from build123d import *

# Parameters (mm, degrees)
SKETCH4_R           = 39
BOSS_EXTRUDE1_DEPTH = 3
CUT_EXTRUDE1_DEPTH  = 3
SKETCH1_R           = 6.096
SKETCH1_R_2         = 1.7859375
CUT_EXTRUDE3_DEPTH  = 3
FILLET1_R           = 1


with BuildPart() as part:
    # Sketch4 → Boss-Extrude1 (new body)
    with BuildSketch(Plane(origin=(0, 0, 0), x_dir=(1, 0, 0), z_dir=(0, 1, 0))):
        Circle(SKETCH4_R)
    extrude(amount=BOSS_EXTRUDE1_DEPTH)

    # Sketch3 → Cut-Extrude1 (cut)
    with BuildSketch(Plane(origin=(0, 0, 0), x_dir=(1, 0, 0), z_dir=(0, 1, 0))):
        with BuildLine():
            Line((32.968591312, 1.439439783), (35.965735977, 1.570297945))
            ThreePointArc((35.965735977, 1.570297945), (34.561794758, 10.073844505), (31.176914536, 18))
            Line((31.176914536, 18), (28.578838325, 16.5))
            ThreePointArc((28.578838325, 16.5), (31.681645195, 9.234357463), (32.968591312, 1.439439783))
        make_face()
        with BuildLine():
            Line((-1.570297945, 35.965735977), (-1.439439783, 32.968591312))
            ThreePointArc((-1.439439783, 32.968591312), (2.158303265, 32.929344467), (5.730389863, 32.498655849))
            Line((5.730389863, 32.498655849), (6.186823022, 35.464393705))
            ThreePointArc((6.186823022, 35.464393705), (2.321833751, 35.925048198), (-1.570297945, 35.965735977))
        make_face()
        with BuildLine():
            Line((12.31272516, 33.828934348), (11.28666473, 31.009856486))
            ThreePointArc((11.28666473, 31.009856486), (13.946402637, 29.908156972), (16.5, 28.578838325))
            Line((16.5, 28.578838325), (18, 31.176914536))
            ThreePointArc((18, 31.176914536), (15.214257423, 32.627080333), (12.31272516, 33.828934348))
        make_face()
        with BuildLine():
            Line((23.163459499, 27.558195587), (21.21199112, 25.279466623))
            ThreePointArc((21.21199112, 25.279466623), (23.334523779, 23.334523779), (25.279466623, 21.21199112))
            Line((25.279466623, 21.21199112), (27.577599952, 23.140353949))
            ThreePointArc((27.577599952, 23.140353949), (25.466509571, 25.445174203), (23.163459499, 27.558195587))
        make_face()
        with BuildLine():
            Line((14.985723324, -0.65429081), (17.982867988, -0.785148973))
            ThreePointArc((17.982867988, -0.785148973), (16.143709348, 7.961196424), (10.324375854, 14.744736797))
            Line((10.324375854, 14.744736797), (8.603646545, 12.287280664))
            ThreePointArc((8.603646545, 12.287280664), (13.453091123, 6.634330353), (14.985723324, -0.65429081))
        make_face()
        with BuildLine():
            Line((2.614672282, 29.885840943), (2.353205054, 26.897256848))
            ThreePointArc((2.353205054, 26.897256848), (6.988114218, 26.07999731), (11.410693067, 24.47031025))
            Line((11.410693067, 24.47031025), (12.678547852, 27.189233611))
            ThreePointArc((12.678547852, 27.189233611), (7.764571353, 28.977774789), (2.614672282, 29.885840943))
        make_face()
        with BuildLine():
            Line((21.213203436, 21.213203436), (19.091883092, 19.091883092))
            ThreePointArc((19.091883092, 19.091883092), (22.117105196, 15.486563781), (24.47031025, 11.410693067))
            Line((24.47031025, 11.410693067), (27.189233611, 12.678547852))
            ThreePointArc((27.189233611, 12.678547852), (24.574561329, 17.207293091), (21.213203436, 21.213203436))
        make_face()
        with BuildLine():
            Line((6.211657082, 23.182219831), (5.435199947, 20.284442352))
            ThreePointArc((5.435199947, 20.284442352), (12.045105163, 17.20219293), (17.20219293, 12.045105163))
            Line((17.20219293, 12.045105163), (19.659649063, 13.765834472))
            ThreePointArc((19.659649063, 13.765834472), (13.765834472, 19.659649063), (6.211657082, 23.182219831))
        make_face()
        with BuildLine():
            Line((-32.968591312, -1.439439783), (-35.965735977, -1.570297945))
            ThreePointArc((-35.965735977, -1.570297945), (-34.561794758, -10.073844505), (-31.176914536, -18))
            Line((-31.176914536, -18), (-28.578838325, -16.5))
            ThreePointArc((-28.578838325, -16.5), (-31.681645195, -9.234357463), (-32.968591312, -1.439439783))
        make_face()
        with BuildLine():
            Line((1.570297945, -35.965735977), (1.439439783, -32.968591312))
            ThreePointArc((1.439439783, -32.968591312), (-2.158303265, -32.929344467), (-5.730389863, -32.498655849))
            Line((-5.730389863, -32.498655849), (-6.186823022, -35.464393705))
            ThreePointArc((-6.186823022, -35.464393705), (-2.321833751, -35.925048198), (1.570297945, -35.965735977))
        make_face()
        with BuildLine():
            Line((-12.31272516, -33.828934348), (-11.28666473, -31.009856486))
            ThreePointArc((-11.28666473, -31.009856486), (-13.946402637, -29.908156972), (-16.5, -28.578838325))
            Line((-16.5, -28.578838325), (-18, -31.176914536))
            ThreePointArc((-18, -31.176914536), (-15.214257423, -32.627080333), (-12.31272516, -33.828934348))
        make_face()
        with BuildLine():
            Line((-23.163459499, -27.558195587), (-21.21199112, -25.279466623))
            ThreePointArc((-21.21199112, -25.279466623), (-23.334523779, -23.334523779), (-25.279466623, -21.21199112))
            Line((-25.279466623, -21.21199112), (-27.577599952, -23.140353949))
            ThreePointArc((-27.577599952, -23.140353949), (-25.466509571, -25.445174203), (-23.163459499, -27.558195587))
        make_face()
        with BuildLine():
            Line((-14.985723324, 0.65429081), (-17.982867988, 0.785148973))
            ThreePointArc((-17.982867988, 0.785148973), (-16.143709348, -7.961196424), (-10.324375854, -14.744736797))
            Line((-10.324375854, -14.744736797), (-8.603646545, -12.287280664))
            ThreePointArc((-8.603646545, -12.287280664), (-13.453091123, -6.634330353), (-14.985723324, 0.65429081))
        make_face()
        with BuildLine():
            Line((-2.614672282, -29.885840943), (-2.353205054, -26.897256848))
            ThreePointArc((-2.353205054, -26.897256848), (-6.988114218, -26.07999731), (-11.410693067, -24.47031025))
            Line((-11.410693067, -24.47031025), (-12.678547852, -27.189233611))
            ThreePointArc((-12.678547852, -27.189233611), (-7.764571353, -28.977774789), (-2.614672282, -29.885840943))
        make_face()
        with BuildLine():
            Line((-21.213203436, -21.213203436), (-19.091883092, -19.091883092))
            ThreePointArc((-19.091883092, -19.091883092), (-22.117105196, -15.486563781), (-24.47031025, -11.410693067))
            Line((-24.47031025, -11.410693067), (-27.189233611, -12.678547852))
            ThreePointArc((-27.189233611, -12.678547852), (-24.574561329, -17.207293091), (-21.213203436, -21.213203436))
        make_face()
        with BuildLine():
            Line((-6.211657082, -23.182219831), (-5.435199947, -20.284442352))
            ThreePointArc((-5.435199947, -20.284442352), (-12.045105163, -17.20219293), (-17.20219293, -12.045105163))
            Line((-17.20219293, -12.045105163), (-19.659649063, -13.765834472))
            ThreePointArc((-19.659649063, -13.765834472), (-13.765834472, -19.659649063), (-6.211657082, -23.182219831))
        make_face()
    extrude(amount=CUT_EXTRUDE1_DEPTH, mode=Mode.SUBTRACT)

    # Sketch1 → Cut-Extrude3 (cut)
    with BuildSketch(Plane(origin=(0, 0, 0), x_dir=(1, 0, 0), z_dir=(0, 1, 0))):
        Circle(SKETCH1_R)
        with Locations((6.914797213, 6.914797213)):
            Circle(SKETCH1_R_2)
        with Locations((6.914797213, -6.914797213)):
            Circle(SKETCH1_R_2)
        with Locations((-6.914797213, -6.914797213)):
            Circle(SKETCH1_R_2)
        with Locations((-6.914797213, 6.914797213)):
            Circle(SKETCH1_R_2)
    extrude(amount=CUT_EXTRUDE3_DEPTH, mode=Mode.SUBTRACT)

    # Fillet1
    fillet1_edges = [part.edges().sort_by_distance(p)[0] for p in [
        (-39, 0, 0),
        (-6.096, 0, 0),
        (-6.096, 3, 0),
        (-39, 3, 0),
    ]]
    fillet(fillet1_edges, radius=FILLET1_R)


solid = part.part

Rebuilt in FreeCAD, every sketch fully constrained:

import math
import FreeCAD as App
import Part
import Sketcher
from FreeCAD import Vector
Q = App.Units.Quantity


def edges_at(feature, points):
    """Names of the edges that pass closest to the given points."""
    edges = feature.Shape.Edges
    near = lambda p: min(range(len(edges)), key=lambda i: edges[i].distToShape(Part.Vertex(*p))[0])
    return sorted({f"Edge{near(p) + 1}" for p in points})

doc = App.newDocument("Part")
body = doc.addObject("PartDesign::Body", "Body")

sketch1 = doc.addObject("Sketcher::SketchObject", "Sketch")
body.addObject(sketch1)
sketch1.AttachmentSupport = (doc.XZ_Plane, [""])
sketch1.MapMode = "FlatFace"
sketch1.addGeometry(Part.Circle(Vector(0, 0, 0), Vector(0, 0, 1), 39), False)
sketch1.addConstraint([
    Sketcher.Constraint("Coincident", 0, 3, -1, 1),
    Sketcher.Constraint("Diameter", 0, 78.0),
])
pad1 = doc.addObject("PartDesign::Pad", "Pad")
body.addObject(pad1)
pad1.Profile = sketch1
pad1.Length = 3
pad1.Reversed = True

sketch2 = doc.addObject("Sketcher::SketchObject", "Sketch001")
body.addObject(sketch2)
sketch2.AttachmentSupport = (doc.XZ_Plane, [""])
sketch2.MapMode = "FlatFace"
sketch2.addGeometry([
    Part.LineSegment(Vector(33, -1.4, 0), Vector(36, -1.6, 0)),
    Part.ArcOfCircle(Part.Circle(Vector(0, 0, 0), Vector(0, 0, 1), 36), math.radians(-30), math.radians(-2)),
    Part.LineSegment(Vector(31.2, -18, 0), Vector(28.6, -16.5, 0)),
    Part.ArcOfCircle(Part.Circle(Vector(0, 0, 0), Vector(0, 0, 1), 33), math.radians(-30), math.radians(-2)),
    Part.LineSegment(Vector(-1.6, -36, 0), Vector(-1.4, -33, 0)),
    Part.ArcOfCircle(Part.Circle(Vector(0, 0, 0), Vector(0, 0, 1), 33), math.radians(-92.5), math.radians(-80)),
    Part.LineSegment(Vector(5.7, -32.5, 0), Vector(6.2, -35.5, 0)),
    Part.ArcOfCircle(Part.Circle(Vector(0, 0, 0), Vector(0, 0, 1), 36), math.radians(-92.5), math.radians(-80.1)),
    Part.LineSegment(Vector(12.3, -33.8, 0), Vector(11.3, -31, 0)),
    Part.ArcOfCircle(Part.Circle(Vector(0, 0, 0), Vector(0, 0, 1), 33), math.radians(-70), math.radians(-60)),
    Part.LineSegment(Vector(16.5, -28.6, 0), Vector(18, -31.2, 0)),
    Part.ArcOfCircle(Part.Circle(Vector(0, 0, 0), Vector(0, 0, 1), 36), math.radians(-70), math.radians(-60)),
    Part.LineSegment(Vector(23.2, -27.6, 0), Vector(21.2, -25.3, 0)),
    Part.ArcOfCircle(Part.Circle(Vector(0, 0, 0), Vector(0, 0, 1), 33), math.radians(-50), math.radians(-40)),
    Part.LineSegment(Vector(25.3, -21.2, 0), Vector(27.6, -23.1, 0)),
    Part.ArcOfCircle(Part.Circle(Vector(0, 0, 0), Vector(0, 0, 1), 36), math.radians(-49.95), math.radians(-40)),
    Part.LineSegment(Vector(15, 0.7, 0), Vector(18, 0.8, 0)),
    Part.ArcOfCircle(Part.Circle(Vector(0, 0, 0), Vector(0, 0, 1), 18), math.radians(-55), math.radians(3)),
    Part.LineSegment(Vector(10.3, -14.7, 0), Vector(8.6, -12.3, 0)),
    Part.ArcOfCircle(Part.Circle(Vector(0, 0, 0), Vector(0, 0, 1), 15), math.radians(-55), math.radians(2)),
    Part.LineSegment(Vector(2.6, -29.9, 0), Vector(2.4, -26.9, 0)),
    Part.ArcOfCircle(Part.Circle(Vector(0, 0, 0), Vector(0, 0, 1), 27), math.radians(-85), math.radians(-65)),
    Part.LineSegment(Vector(11.4, -24.5, 0), Vector(12.7, -27.2, 0)),
    Part.ArcOfCircle(Part.Circle(Vector(0, 0, 0), Vector(0, 0, 1), 30), math.radians(-85), math.radians(-65)),
    Part.LineSegment(Vector(21.2, -21.2, 0), Vector(19.1, -19.1, 0)),
    Part.ArcOfCircle(Part.Circle(Vector(0, 0, 0), Vector(0, 0, 1), 27), math.radians(-45), math.radians(-25)),
    Part.LineSegment(Vector(24.5, -11.4, 0), Vector(27.2, -12.7, 0)),
    Part.ArcOfCircle(Part.Circle(Vector(0, 0, 0), Vector(0, 0, 1), 30), math.radians(-45), math.radians(-25)),
    Part.LineSegment(Vector(6.2, -23.2, 0), Vector(5.4, -20.3, 0)),
    Part.ArcOfCircle(Part.Circle(Vector(0, 0, 0), Vector(0, 0, 1), 21), math.radians(-75), math.radians(-35)),
    Part.LineSegment(Vector(17.2, -12, 0), Vector(19.7, -13.8, 0)),
    Part.ArcOfCircle(Part.Circle(Vector(0, 0, 0), Vector(0, 0, 1), 24), math.radians(-75), math.radians(-35)),
    Part.LineSegment(Vector(-33, 1.4, 0), Vector(-36, 1.6, 0)),
    Part.ArcOfCircle(Part.Circle(Vector(0, 0, 0), Vector(0, 0, 1), 36), math.radians(150), math.radians(178)),
    Part.LineSegment(Vector(-31.2, 18, 0), Vector(-28.6, 16.5, 0)),
    Part.ArcOfCircle(Part.Circle(Vector(0, 0, 0), Vector(0, 0, 1), 33), math.radians(150), math.radians(178)),
    Part.LineSegment(Vector(1.6, 36, 0), Vector(1.4, 33, 0)),
    Part.ArcOfCircle(Part.Circle(Vector(0, 0, 0), Vector(0, 0, 1), 33), math.radians(87.5), math.radians(100)),
    Part.LineSegment(Vector(-5.7, 32.5, 0), Vector(-6.2, 35.5, 0)),
    Part.ArcOfCircle(Part.Circle(Vector(0, 0, 0), Vector(0, 0, 1), 36), math.radians(87.5), math.radians(99.9)),
    Part.LineSegment(Vector(-12.3, 33.8, 0), Vector(-11.3, 31, 0)),
    Part.ArcOfCircle(Part.Circle(Vector(0, 0, 0), Vector(0, 0, 1), 33), math.radians(110), math.radians(120)),
    Part.LineSegment(Vector(-16.5, 28.6, 0), Vector(-18, 31.2, 0)),
    Part.ArcOfCircle(Part.Circle(Vector(0, 0, 0), Vector(0, 0, 1), 36), math.radians(110), math.radians(120)),
    Part.LineSegment(Vector(-23.2, 27.6, 0), Vector(-21.2, 25.3, 0)),
    Part.ArcOfCircle(Part.Circle(Vector(0, 0, 0), Vector(0, 0, 1), 33), math.radians(130), math.radians(140)),
    Part.LineSegment(Vector(-25.3, 21.2, 0), Vector(-27.6, 23.1, 0)),
    Part.ArcOfCircle(Part.Circle(Vector(0, 0, 0), Vector(0, 0, 1), 36), math.radians(130.05), math.radians(140)),
    Part.LineSegment(Vector(-15, -0.7, 0), Vector(-18, -0.8, 0)),
    Part.ArcOfCircle(Part.Circle(Vector(0, 0, 0), Vector(0, 0, 1), 18), math.radians(125), math.radians(183)),
    Part.LineSegment(Vector(-10.3, 14.7, 0), Vector(-8.6, 12.3, 0)),
    Part.ArcOfCircle(Part.Circle(Vector(0, 0, 0), Vector(0, 0, 1), 15), math.radians(125), math.radians(182)),
    Part.LineSegment(Vector(-2.6, 29.9, 0), Vector(-2.4, 26.9, 0)),
    Part.ArcOfCircle(Part.Circle(Vector(0, 0, 0), Vector(0, 0, 1), 27), math.radians(95), math.radians(115)),
    Part.LineSegment(Vector(-11.4, 24.5, 0), Vector(-12.7, 27.2, 0)),
    Part.ArcOfCircle(Part.Circle(Vector(0, 0, 0), Vector(0, 0, 1), 30), math.radians(95), math.radians(115)),
    Part.LineSegment(Vector(-21.2, 21.2, 0), Vector(-19.1, 19.1, 0)),
    Part.ArcOfCircle(Part.Circle(Vector(0, 0, 0), Vector(0, 0, 1), 27), math.radians(135), math.radians(155)),
    Part.LineSegment(Vector(-24.5, 11.4, 0), Vector(-27.2, 12.7, 0)),
    Part.ArcOfCircle(Part.Circle(Vector(0, 0, 0), Vector(0, 0, 1), 30), math.radians(135), math.radians(155)),
    Part.LineSegment(Vector(-6.2, 23.2, 0), Vector(-5.4, 20.3, 0)),
    Part.ArcOfCircle(Part.Circle(Vector(0, 0, 0), Vector(0, 0, 1), 21), math.radians(105), math.radians(145)),
    Part.LineSegment(Vector(-17.2, 12, 0), Vector(-19.7, 13.8, 0)),
    Part.ArcOfCircle(Part.Circle(Vector(0, 0, 0), Vector(0, 0, 1), 24), math.radians(105), math.radians(145)),
], False)
sketch2.addConstraint([
    Sketcher.Constraint("Coincident", 0, 2, 1, 2),
    Sketcher.Constraint("Coincident", 1, 1, 2, 1),
    Sketcher.Constraint("Coincident", 2, 2, 3, 1),
    Sketcher.Constraint("Coincident", 3, 2, 0, 1),
    Sketcher.Constraint("Coincident", 4, 2, 5, 1),
    Sketcher.Constraint("Coincident", 5, 2, 6, 1),
    Sketcher.Constraint("Coincident", 6, 2, 7, 2),
    Sketcher.Constraint("Coincident", 7, 1, 4, 1),
    Sketcher.Constraint("Coincident", 8, 2, 9, 1),
    Sketcher.Constraint("Coincident", 9, 2, 10, 1),
    Sketcher.Constraint("Coincident", 10, 2, 11, 2),
    Sketcher.Constraint("Coincident", 11, 1, 8, 1),
    Sketcher.Constraint("Coincident", 12, 2, 13, 1),
    Sketcher.Constraint("Coincident", 13, 2, 14, 1),
    Sketcher.Constraint("Coincident", 14, 2, 15, 2),
    Sketcher.Constraint("Coincident", 15, 1, 12, 1),
    Sketcher.Constraint("Coincident", 16, 2, 17, 2),
    Sketcher.Constraint("Coincident", 17, 1, 18, 1),
    Sketcher.Constraint("Coincident", 18, 2, 19, 1),
    Sketcher.Constraint("Coincident", 19, 2, 16, 1),
    Sketcher.Constraint("Coincident", 20, 2, 21, 1),
    Sketcher.Constraint("Coincident", 21, 2, 22, 1),
    Sketcher.Constraint("Coincident", 22, 2, 23, 2),
    Sketcher.Constraint("Coincident", 23, 1, 20, 1),
    Sketcher.Constraint("Coincident", 24, 2, 25, 1),
    Sketcher.Constraint("Coincident", 25, 2, 26, 1),
    Sketcher.Constraint("Coincident", 26, 2, 27, 2),
    Sketcher.Constraint("Coincident", 27, 1, 24, 1),
    Sketcher.Constraint("Coincident", 28, 2, 29, 1),
    Sketcher.Constraint("Coincident", 29, 2, 30, 1),
    Sketcher.Constraint("Coincident", 30, 2, 31, 2),
    Sketcher.Constraint("Coincident", 31, 1, 28, 1),
    Sketcher.Constraint("Coincident", 32, 2, 33, 2),
    Sketcher.Constraint("Coincident", 33, 1, 34, 1),
    Sketcher.Constraint("Coincident", 34, 2, 35, 1),
    Sketcher.Constraint("Coincident", 35, 2, 32, 1),
    Sketcher.Constraint("Coincident", 36, 2, 37, 1),
    Sketcher.Constraint("Coincident", 37, 2, 38, 1),
    Sketcher.Constraint("Coincident", 38, 2, 39, 2),
    Sketcher.Constraint("Coincident", 39, 1, 36, 1),
    Sketcher.Constraint("Coincident", 40, 2, 41, 1),
    Sketcher.Constraint("Coincident", 41, 2, 42, 1),
    Sketcher.Constraint("Coincident", 42, 2, 43, 2),
    Sketcher.Constraint("Coincident", 43, 1, 40, 1),
    Sketcher.Constraint("Coincident", 44, 2, 45, 1),
    Sketcher.Constraint("Coincident", 45, 2, 46, 1),
    Sketcher.Constraint("Coincident", 46, 2, 47, 2),
    Sketcher.Constraint("Coincident", 47, 1, 44, 1),
    Sketcher.Constraint("Coincident", 48, 2, 49, 2),
    Sketcher.Constraint("Coincident", 49, 1, 50, 1),
    Sketcher.Constraint("Coincident", 50, 2, 51, 1),
    Sketcher.Constraint("Coincident", 51, 2, 48, 1),
    Sketcher.Constraint("Coincident", 52, 2, 53, 1),
    Sketcher.Constraint("Coincident", 53, 2, 54, 1),
    Sketcher.Constraint("Coincident", 54, 2, 55, 2),
    Sketcher.Constraint("Coincident", 55, 1, 52, 1),
    Sketcher.Constraint("Coincident", 56, 2, 57, 1),
    Sketcher.Constraint("Coincident", 57, 2, 58, 1),
    Sketcher.Constraint("Coincident", 58, 2, 59, 2),
    Sketcher.Constraint("Coincident", 59, 1, 56, 1),
    Sketcher.Constraint("Coincident", 60, 2, 61, 1),
    Sketcher.Constraint("Coincident", 61, 2, 62, 1),
    Sketcher.Constraint("Coincident", 62, 2, 63, 2),
    Sketcher.Constraint("Coincident", 63, 1, 60, 1),
    Sketcher.Constraint("Coincident", 1, 3, -1, 1),
    Sketcher.Constraint("Coincident", 3, 3, -1, 1),
    Sketcher.Constraint("Coincident", 5, 3, -1, 1),
    Sketcher.Constraint("Coincident", 7, 3, -1, 1),
    Sketcher.Constraint("Coincident", 9, 3, -1, 1),
    Sketcher.Constraint("Coincident", 11, 3, -1, 1),
    Sketcher.Constraint("Coincident", 13, 3, -1, 1),
    Sketcher.Constraint("Coincident", 15, 3, -1, 1),
    Sketcher.Constraint("Coincident", 17, 3, -1, 1),
    Sketcher.Constraint("Coincident", 19, 3, -1, 1),
    Sketcher.Constraint("Coincident", 21, 3, -1, 1),
    Sketcher.Constraint("Coincident", 23, 3, -1, 1),
    Sketcher.Constraint("Coincident", 25, 3, -1, 1),
    Sketcher.Constraint("Coincident", 27, 3, -1, 1),
    Sketcher.Constraint("Coincident", 29, 3, -1, 1),
    Sketcher.Constraint("Coincident", 31, 3, -1, 1),
    Sketcher.Constraint("Coincident", 33, 3, -1, 1),
    Sketcher.Constraint("Coincident", 35, 3, -1, 1),
    Sketcher.Constraint("Coincident", 37, 3, -1, 1),
    Sketcher.Constraint("Coincident", 39, 3, -1, 1),
    Sketcher.Constraint("Coincident", 41, 3, -1, 1),
    Sketcher.Constraint("Coincident", 43, 3, -1, 1),
    Sketcher.Constraint("Coincident", 45, 3, -1, 1),
    Sketcher.Constraint("Coincident", 47, 3, -1, 1),
    Sketcher.Constraint("Coincident", 49, 3, -1, 1),
    Sketcher.Constraint("Coincident", 51, 3, -1, 1),
    Sketcher.Constraint("Coincident", 53, 3, -1, 1),
    Sketcher.Constraint("Coincident", 55, 3, -1, 1),
    Sketcher.Constraint("Coincident", 57, 3, -1, 1),
    Sketcher.Constraint("Coincident", 59, 3, -1, 1),
    Sketcher.Constraint("Coincident", 61, 3, -1, 1),
    Sketcher.Constraint("Coincident", 63, 3, -1, 1),
    Sketcher.Constraint("Equal", 3, 5),
    Sketcher.Constraint("Equal", 1, 7),
    Sketcher.Constraint("Equal", 5, 9),
    Sketcher.Constraint("Equal", 7, 11),
    Sketcher.Constraint("Equal", 9, 13),
    Sketcher.Constraint("Equal", 11, 15),
    Sketcher.Constraint("Equal", 21, 25),
    Sketcher.Constraint("Equal", 23, 27),
    Sketcher.Constraint("Equal", 15, 33),
    Sketcher.Constraint("Equal", 13, 35),
    Sketcher.Constraint("Equal", 35, 37),
    Sketcher.Constraint("Equal", 33, 39),
    Sketcher.Constraint("Equal", 37, 41),
    Sketcher.Constraint("Equal", 39, 43),
    Sketcher.Constraint("Equal", 41, 45),
    Sketcher.Constraint("Equal", 43, 47),
    Sketcher.Constraint("Equal", 17, 49),
    Sketcher.Constraint("Equal", 19, 51),
    Sketcher.Constraint("Equal", 25, 53),
    Sketcher.Constraint("Equal", 27, 55),
    Sketcher.Constraint("Equal", 53, 57),
    Sketcher.Constraint("Equal", 55, 59),
    Sketcher.Constraint("Equal", 29, 61),
    Sketcher.Constraint("Equal", 31, 63),
    Sketcher.Constraint("Perpendicular", 0, 4),
    Sketcher.Constraint("Perpendicular", 4, 32),
    Sketcher.Constraint("Parallel", 2, 34),
    Sketcher.Constraint("Perpendicular", 32, 36),
    Sketcher.Constraint("Parallel", 6, 38),
    Sketcher.Constraint("Parallel", 8, 40),
    Sketcher.Constraint("Parallel", 10, 42),
    Sketcher.Constraint("Parallel", 12, 44),
    Sketcher.Constraint("Parallel", 14, 46),
    Sketcher.Constraint("Parallel", 16, 48),
    Sketcher.Constraint("Parallel", 18, 50),
    Sketcher.Constraint("Parallel", 20, 52),
    Sketcher.Constraint("Parallel", 22, 54),
    Sketcher.Constraint("Parallel", 24, 56),
    Sketcher.Constraint("Parallel", 26, 58),
    Sketcher.Constraint("Parallel", 28, 60),
    Sketcher.Constraint("Parallel", 30, 62),
    Sketcher.Constraint("Equal", 14, 16),
    Sketcher.Constraint("Equal", 18, 20),
    Sketcher.Constraint("Equal", 26, 28),
    Sketcher.Constraint("Radius", 1, 36.0),
    Sketcher.Constraint("Radius", 3, 33.0),
    Sketcher.Constraint("Radius", 17, 18.0),
    Sketcher.Constraint("Radius", 21, 27.0),
    Sketcher.Constraint("Radius", 29, 21.0),
    Sketcher.Constraint("Angle", 2, Q("150 deg")),
    Sketcher.Constraint("Angle", 8, Q("110 deg")),
    Sketcher.Constraint("Angle", 10, Q("-60 deg")),
    Sketcher.Constraint("Angle", 14, Q("-40 deg")),
    Sketcher.Constraint("Angle", 18, Q("125 deg")),
    Sketcher.Constraint("Angle", 20, Q("95 deg")),
    Sketcher.Constraint("Angle", 22, Q("-65 deg")),
    Sketcher.Constraint("Angle", 24, Q("135 deg")),
    Sketcher.Constraint("Angle", 26, Q("-25 deg")),
    Sketcher.Constraint("Angle", 28, Q("105 deg")),
    Sketcher.Constraint("Angle", 30, Q("-35 deg")),
    Sketcher.Constraint("DistanceY", 1, 1, -1, 1, 18.0),
    Sketcher.Constraint("DistanceX", -1, 1, 10, 2, 18.0),
    Sketcher.Constraint("DistanceY", -1, 1, 33, 1, 18.0),
    Sketcher.Constraint("DistanceX", 42, 2, -1, 1, 18.0),
    Sketcher.Constraint("Angle", 0, Q("-2.5 deg")),
    Sketcher.Constraint("Angle", 16, Q("2.5 deg")),
    Sketcher.Constraint("DistanceX", -1, 1, 14, 2, 27.5776),
    Sketcher.Constraint("DistanceX", -1, 1, 28, 2, 5.4352),
    Sketcher.Constraint("DistanceX", 46, 2, -1, 1, 27.5776),
    Sketcher.Constraint("DistanceX", 60, 2, -1, 1, 5.4352),
    Sketcher.Constraint("Distance", 12, 3.000139),
    Sketcher.Constraint("DistanceX", -1, 1, 3, 2, 32.968591),
    Sketcher.Constraint("DistanceX", 4, 2, -1, 1, 1.43944),
    Sketcher.Constraint("DistanceX", -1, 1, 5, 2, 5.73039),
    Sketcher.Constraint("DistanceX", -1, 1, 12, 2, 21.211991),
    Sketcher.Constraint("DistanceY", -1, 1, 16, 2, 0.785149),
    Sketcher.Constraint("DistanceY", 18, 2, -1, 1, 12.287281),
    Sketcher.Constraint("DistanceY", 21, 2, -1, 1, 24.47031),
    Sketcher.Constraint("DistanceY", 23, 1, -1, 1, 29.885841),
    Sketcher.Constraint("DistanceX", -1, 1, 25, 2, 24.47031),
    Sketcher.Constraint("DistanceX", -1, 1, 30, 2, 19.659649),
    Sketcher.Constraint("DistanceX", 35, 2, -1, 1, 32.968591),
    Sketcher.Constraint("DistanceX", -1, 1, 36, 2, 1.43944),
    Sketcher.Constraint("DistanceX", 37, 2, -1, 1, 5.73039),
    Sketcher.Constraint("DistanceX", 44, 2, -1, 1, 21.211991),
    Sketcher.Constraint("DistanceY", 48, 2, -1, 1, 0.785149),
    Sketcher.Constraint("DistanceY", -1, 1, 50, 2, 12.287281),
    Sketcher.Constraint("DistanceY", -1, 1, 53, 2, 24.47031),
    Sketcher.Constraint("DistanceY", -1, 1, 55, 1, 29.885841),
    Sketcher.Constraint("DistanceX", 57, 2, -1, 1, 24.47031),
    Sketcher.Constraint("DistanceX", 62, 2, -1, 1, 19.659649),
    Sketcher.Constraint("Distance", 6, 3.000655),
    Sketcher.Constraint("DistanceX", -1, 1, 8, 2, 11.286665),
    Sketcher.Constraint("DistanceX", -1, 1, 24, 2, 19.091883),
    Sketcher.Constraint("DistanceX", 40, 2, -1, 1, 11.286665),
    Sketcher.Constraint("DistanceX", 56, 2, -1, 1, 19.091883),
])
pocket1 = doc.addObject("PartDesign::Pocket", "Pocket")
body.addObject(pocket1)
pocket1.Profile = sketch2
pocket1.Length = 3

sketch3 = doc.addObject("Sketcher::SketchObject", "Sketch002")
body.addObject(sketch3)
sketch3.AttachmentSupport = (doc.XZ_Plane, [""])
sketch3.MapMode = "FlatFace"
sketch3.addGeometry([
    Part.Circle(Vector(0, 0, 0), Vector(0, 0, 1), 6.1),
    Part.Circle(Vector(6.9, -6.9, 0), Vector(0, 0, 1), 1.8),
    Part.Circle(Vector(6.9, 6.9, 0), Vector(0, 0, 1), 1.8),
    Part.Circle(Vector(-6.9, 6.9, 0), Vector(0, 0, 1), 1.8),
    Part.Circle(Vector(-6.9, -6.9, 0), Vector(0, 0, 1), 1.8),
], False)
sketch3.addConstraint([
    Sketcher.Constraint("Coincident", 0, 3, -1, 1),
    Sketcher.Constraint("Equal", 1, 2),
    Sketcher.Constraint("Equal", 2, 3),
    Sketcher.Constraint("Equal", 3, 4),
    Sketcher.Constraint("Symmetric", 1, 3, 3, 3, -1, 1),
    Sketcher.Constraint("Symmetric", 2, 3, 4, 3, -1, 1),
    Sketcher.Constraint("Symmetric", 2, 3, 3, 3, -2),
    Sketcher.Constraint("Diameter", 0, 12.192),
    Sketcher.Constraint("Diameter", 1, 3.571875),
    Sketcher.Constraint("DistanceX", -1, 1, 1, 3, 6.914797),
    Sketcher.Constraint("DistanceY", 1, 3, -1, 1, 6.914797),
])
pocket2 = doc.addObject("PartDesign::Pocket", "Pocket001")
body.addObject(pocket2)
pocket2.Profile = sketch3
pocket2.Length = 3
doc.recompute()

fillet = doc.addObject("PartDesign::Fillet", "Fillet")
body.addObject(fillet)
fillet.Base = (pocket2, edges_at(pocket2, [
    (-39, 0, 0),
    (-6.096, 0, 0),
    (-6.096, 3, 0),
    (-39, 3, 0),
]))
fillet.Radius = 1

doc.recompute()
